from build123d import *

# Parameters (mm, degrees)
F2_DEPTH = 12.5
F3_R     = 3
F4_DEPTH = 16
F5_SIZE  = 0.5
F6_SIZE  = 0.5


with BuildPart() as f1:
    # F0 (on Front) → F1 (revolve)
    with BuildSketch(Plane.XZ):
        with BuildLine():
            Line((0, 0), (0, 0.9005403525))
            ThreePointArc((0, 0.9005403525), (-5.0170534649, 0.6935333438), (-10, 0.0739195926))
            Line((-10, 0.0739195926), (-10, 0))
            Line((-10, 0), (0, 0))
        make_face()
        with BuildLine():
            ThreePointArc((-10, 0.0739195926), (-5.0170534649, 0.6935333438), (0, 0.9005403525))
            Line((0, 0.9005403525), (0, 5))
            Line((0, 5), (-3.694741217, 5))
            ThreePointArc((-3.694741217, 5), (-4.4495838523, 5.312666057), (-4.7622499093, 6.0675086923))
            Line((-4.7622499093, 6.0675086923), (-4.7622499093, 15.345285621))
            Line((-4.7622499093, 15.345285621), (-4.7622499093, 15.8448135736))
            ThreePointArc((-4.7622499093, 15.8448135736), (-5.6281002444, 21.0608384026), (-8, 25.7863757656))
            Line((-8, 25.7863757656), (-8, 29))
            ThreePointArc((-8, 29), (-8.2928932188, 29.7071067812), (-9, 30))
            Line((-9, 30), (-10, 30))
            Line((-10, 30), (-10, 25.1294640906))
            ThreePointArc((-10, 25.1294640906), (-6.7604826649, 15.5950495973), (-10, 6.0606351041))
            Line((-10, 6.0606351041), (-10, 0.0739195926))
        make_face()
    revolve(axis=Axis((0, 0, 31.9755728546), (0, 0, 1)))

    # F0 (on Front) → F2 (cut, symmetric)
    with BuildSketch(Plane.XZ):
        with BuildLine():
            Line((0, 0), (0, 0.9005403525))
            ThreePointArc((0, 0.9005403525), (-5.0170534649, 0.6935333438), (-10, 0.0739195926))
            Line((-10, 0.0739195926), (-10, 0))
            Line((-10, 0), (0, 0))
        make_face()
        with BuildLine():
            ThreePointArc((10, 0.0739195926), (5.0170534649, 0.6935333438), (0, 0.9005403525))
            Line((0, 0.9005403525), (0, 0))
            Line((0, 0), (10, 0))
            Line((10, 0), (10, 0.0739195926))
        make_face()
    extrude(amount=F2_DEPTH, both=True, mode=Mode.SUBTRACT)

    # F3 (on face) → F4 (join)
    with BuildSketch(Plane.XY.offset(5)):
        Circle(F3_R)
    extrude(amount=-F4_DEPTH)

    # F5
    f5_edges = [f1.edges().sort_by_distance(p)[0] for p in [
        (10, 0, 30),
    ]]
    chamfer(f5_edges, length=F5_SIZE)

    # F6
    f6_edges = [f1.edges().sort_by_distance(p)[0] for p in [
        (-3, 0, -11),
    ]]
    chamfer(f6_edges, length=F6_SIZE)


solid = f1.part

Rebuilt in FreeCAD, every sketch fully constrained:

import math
import FreeCAD as App
import Part
import Sketcher

V = App.Vector
Q = App.Units.Quantity


def edges_at(feature, points):
    """Names of the edges that pass closest to the given points."""
    edges = feature.Shape.Edges
    near = lambda p: min(range(len(edges)), key=lambda i: edges[i].distToShape(Part.Vertex(*p))[0])
    return sorted({f"Edge{near(p) + 1}" for p in points})

doc = App.newDocument("Part")
body = doc.addObject("PartDesign::Body", "Body")

# Sketch on XZ plane
sketch1 = doc.addObject("Sketcher::SketchObject", "Sketch")
body.addObject(sketch1)
sketch1.AttachmentSupport = (doc.XZ_Plane, [""])
sketch1.MapMode = "FlatFace"
sketch1.addGeometry([
    Part.LineSegment(V(0, 0, 0), V(0, 5, 0)),  # 0
    Part.LineSegment(V(0, 5, 0), V(-3.7, 5, 0)),  # 1
    Part.ArcOfCircle(Part.Circle(V(-3.7, 6.1, 0), V(0, 0, 1), 1.1), math.radians(180), math.radians(270)),  # 2
    Part.LineSegment(V(-4.8, 6.1, 0), V(-4.8, 15.8, 0)),  # 3
    Part.ArcOfCircle(Part.Circle(V(-22.4, 15.6, 0), V(0, 0, 1), 17.7), math.radians(1), math.radians(35)),  # 4
    Part.LineSegment(V(-8, 25.8, 0), V(-8, 29, 0)),  # 5
    Part.ArcOfCircle(Part.Circle(V(-9, 29, 0), V(0, 0, 1), 1), math.radians(0), math.radians(90)),  # 6
    Part.LineSegment(V(-9, 30, 0), V(-10, 30, 0)),  # 7
    Part.LineSegment(V(-10, 30, 0), V(-10, 25.1, 0)),  # 8
    Part.ArcOfCircle(Part.Circle(V(-22.4, 15.6, 0), V(0, 0, 1), 15.7), math.radians(-38), math.radians(38)),  # 9
    Part.LineSegment(V(-10, 6.1, 0), V(-10, 0, 0)),  # 10
    Part.LineSegment(V(-10, 0, 0), V(0, 0, 0)),  # 11
], False)
sketch1.addConstraint([
    Sketcher.Constraint("Coincident", 0, 2, 1, 1),
    Sketcher.Constraint("Tangent", 1, 2, 2, 2),
    Sketcher.Constraint("Tangent", 2, 1, 3, 1),
    Sketcher.Constraint("Coincident", 3, 2, 4, 1),
    Sketcher.Constraint("Coincident", 4, 2, 5, 1),
    Sketcher.Constraint("Tangent", 5, 2, 6, 1),
    Sketcher.Constraint("Tangent", 6, 2, 7, 1),
    Sketcher.Constraint("Coincident", 7, 2, 8, 1),
    Sketcher.Constraint("Coincident", 8, 2, 9, 2),
    Sketcher.Constraint("Coincident", 9, 1, 10, 1),
    Sketcher.Constraint("Coincident", 10, 2, 11, 1),
    Sketcher.Constraint("Coincident", 11, 2, 0, 1),
    Sketcher.Constraint("Vertical", 0),
    Sketcher.Constraint("Horizontal", 1),
    Sketcher.Constraint("Vertical", 3),
    Sketcher.Constraint("Vertical", 5),
    Sketcher.Constraint("Horizontal", 7),
    Sketcher.Constraint("Vertical", 8),
    Sketcher.Constraint("Vertical", 10),
    Sketcher.Constraint("Horizontal", 11),
    Sketcher.Constraint("Coincident", 11, 2, -1, 1),
    Sketcher.Constraint("Coincident", 9, 3, 4, 3),
    Sketcher.Constraint("Vertical", 8, 2, 9, 1),
    Sketcher.Constraint("Radius", 6, Q("1 mm")),
    Sketcher.Constraint("DistanceX", 7, 2, 7, 1, Q("1 mm")),
    Sketcher.Constraint("DistanceX", 11, 1, 11, 2, Q("10 mm")),
    Sketcher.Constraint("DistanceY", 0, 1, 0, 2, Q("5 mm")),
    Sketcher.Constraint("DistanceY", -1, 1, 6, 3, Q("29 mm")),
    Sketcher.Constraint("Radius", 2, Q("1.067509 mm")),
    Sketcher.Constraint("Radius", 4, Q("17.650407 mm")),
    Sketcher.Constraint("Radius", 9, Q("15.650407 mm")),
    Sketcher.Constraint("DistanceX", 1, 2, 1, 1, Q("3.694741 mm")),
    Sketcher.Constraint("DistanceY", 3, 1, 3, 2, Q("9.777305 mm")),
    Sketcher.Constraint("DistanceY", 5, 1, 5, 2, Q("3.213624 mm")),
])
revolution = doc.addObject("PartDesign::Revolution", "Revolution")
body.addObject(revolution)
revolution.Profile = sketch1
revolution.ReferenceAxis = (sketch1, ["V_Axis"])
revolution.Angle = 360

# Sketch on XZ plane
sketch2 = doc.addObject("Sketcher::SketchObject", "Sketch001")
body.addObject(sketch2)
sketch2.AttachmentSupport = (doc.XZ_Plane, [""])
sketch2.MapMode = "FlatFace"
sketch2.addGeometry([
    Part.ArcOfCircle(Part.Circle(V(0, -60, 0), V(0, 0, 1), 60.9), math.radians(90), math.radians(99.45)),  # 0
    Part.LineSegment(V(-10, 0.07, 0), V(-10, 0, 0)),  # 1
    Part.LineSegment(V(-10, 0, 0), V(10, 0, 0)),  # 2
    Part.LineSegment(V(10, 0, 0), V(10, 0.07, 0)),  # 3
    Part.ArcOfCircle(Part.Circle(V(0, -60, 0), V(0, 0, 1), 60.9), math.radians(80.55), math.radians(90)),  # 4
], False)
sketch2.addConstraint([
    Sketcher.Constraint("Coincident", 0, 2, 1, 1),
    Sketcher.Constraint("Coincident", 1, 2, 2, 1),
    Sketcher.Constraint("Coincident", 2, 2, 3, 1),
    Sketcher.Constraint("Coincident", 3, 2, 4, 1),
    Sketcher.Constraint("Tangent", 4, 2, 0, 1),
    Sketcher.Constraint("Vertical", 1),
    Sketcher.Constraint("Horizontal", 2),
    Sketcher.Constraint("Vertical", 3),
    Sketcher.Constraint("Equal", 0, 4),
    Sketcher.Constraint("Symmetric", 1, 2, 2, 2, -1, 1),
    Sketcher.Constraint("PointOnObject", 0, 3, -2),
    Sketcher.Constraint("PointOnObject", 4, 2, -2),
    Sketcher.Constraint("DistanceX", 2, 1, 2, 2, Q("20 mm")),
    Sketcher.Constraint("DistanceY", 0, 3, -1, 1, Q("60 mm")),
    Sketcher.Constraint("Radius", 0, Q("60.90054 mm")),
])
pocket1 = doc.addObject("PartDesign::Pocket", "Pocket")
body.addObject(pocket1)
pocket1.Profile = sketch2
pocket1.Length = 25
pocket1.Midplane = True

# Sketch on XY plane
sketch3 = doc.addObject("Sketcher::SketchObject", "Sketch002")
body.addObject(sketch3)
sketch3.AttachmentSupport = (doc.XY_Plane, [""])
sketch3.MapMode = "FlatFace"
sketch3.AttachmentOffset = App.Placement(V(0, 0, 5), App.Rotation())
sketch3.addGeometry(Part.Circle(V(0, 0, 0), V(0, 0, 1), 3), False)
sketch3.addConstraint([
    Sketcher.Constraint("Coincident", 0, 3, -1, 1),
    Sketcher.Constraint("Diameter", 0, Q("6 mm")),
])
pad1 = doc.addObject("PartDesign::Pad", "Pad")
body.addObject(pad1)
pad1.Profile = sketch3
pad1.Length = 16
pad1.Reversed = True
doc.recompute()

chamfer = doc.addObject("PartDesign::Chamfer", "Chamfer")
body.addObject(chamfer)
chamfer.Base = (pad1, edges_at(pad1, [(10, 0, 30)]))
chamfer.Size = 0.5
doc.recompute()

chamfer2 = doc.addObject("PartDesign::Chamfer", "Chamfer001")
body.addObject(chamfer2)
chamfer2.Base = (chamfer, edges_at(chamfer, [(-3, 0, -11)]))
chamfer2.Size = 0.5

doc.recompute()
